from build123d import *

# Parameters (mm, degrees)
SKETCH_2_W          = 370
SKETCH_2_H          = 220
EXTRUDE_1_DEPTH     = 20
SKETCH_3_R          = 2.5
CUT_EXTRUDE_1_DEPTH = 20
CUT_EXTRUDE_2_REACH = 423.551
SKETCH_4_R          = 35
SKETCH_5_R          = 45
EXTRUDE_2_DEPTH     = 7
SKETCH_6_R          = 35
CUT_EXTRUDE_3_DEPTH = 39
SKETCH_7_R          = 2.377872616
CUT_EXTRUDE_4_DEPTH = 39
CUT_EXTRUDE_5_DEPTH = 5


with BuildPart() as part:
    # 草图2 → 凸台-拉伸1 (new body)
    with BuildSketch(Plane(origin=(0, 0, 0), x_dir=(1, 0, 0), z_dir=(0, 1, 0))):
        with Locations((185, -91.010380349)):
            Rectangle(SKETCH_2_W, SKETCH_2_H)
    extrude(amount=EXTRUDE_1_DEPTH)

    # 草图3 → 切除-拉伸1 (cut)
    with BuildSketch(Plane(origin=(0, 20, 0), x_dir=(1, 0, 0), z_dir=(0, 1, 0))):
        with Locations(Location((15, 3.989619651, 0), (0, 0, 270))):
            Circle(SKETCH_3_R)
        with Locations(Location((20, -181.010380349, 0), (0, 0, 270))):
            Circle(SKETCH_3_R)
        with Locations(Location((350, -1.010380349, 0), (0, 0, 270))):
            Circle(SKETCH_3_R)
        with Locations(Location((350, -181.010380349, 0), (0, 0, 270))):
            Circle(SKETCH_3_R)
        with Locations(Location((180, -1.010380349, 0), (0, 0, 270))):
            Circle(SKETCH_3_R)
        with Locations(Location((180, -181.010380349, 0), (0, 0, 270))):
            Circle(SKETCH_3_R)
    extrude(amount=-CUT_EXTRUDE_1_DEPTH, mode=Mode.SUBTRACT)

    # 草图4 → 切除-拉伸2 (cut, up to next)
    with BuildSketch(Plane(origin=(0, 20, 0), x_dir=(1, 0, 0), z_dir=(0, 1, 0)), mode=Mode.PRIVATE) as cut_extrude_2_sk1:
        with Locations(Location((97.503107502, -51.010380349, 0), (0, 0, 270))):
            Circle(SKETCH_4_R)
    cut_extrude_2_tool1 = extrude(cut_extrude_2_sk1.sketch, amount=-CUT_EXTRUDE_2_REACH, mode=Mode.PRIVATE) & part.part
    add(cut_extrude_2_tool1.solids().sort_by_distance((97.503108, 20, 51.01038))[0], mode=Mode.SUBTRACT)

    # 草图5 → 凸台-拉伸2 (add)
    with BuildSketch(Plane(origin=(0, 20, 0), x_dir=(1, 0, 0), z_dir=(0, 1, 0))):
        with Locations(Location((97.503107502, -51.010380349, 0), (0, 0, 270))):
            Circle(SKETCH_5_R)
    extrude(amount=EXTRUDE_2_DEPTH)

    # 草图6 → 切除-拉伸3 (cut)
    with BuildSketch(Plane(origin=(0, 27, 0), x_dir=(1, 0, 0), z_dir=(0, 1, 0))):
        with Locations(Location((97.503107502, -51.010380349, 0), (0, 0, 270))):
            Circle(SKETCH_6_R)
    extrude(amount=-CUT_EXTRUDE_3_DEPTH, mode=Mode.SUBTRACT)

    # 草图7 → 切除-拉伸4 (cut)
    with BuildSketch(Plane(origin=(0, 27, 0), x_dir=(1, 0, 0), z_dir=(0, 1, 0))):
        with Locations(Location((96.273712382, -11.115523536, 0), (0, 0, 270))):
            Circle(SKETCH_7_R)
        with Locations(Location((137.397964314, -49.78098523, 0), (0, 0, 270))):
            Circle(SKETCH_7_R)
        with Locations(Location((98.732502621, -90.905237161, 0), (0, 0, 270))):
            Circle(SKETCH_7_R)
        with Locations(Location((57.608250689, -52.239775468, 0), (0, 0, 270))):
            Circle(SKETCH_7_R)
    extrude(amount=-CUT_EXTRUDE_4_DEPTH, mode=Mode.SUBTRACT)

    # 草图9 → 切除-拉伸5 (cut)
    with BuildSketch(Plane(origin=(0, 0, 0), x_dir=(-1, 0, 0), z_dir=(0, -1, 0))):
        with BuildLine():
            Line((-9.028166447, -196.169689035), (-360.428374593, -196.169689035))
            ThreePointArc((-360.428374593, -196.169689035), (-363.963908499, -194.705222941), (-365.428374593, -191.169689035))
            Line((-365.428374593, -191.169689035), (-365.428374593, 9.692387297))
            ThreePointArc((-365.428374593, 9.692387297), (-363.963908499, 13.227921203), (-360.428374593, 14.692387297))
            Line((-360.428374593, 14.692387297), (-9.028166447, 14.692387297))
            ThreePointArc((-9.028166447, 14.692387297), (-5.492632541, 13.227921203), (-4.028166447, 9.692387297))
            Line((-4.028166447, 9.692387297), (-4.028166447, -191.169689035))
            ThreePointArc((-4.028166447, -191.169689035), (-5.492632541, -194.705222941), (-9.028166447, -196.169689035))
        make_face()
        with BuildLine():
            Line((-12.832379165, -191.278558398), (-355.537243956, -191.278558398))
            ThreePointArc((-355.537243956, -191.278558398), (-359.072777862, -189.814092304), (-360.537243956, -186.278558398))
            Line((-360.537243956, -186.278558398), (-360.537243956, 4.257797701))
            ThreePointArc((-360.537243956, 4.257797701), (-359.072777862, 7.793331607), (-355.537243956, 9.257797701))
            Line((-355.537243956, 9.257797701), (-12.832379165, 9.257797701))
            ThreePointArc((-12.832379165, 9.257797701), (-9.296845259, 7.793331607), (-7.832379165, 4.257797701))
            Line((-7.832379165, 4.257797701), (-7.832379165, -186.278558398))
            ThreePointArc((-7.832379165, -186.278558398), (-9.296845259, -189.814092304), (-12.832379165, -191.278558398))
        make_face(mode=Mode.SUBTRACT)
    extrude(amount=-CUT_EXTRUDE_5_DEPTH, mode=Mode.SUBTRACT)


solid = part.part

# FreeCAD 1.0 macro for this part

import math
import FreeCAD as App
import Part
import Sketcher

V = App.Vector
Q = App.Units.Quantity


def add_polygon(sketch, points):
    """Adds a closed chain of lines whose ends are joined by coincident constraints."""
    first, n = sketch.GeometryCount, len(points)
    for a, b in zip(points, points[1:] + points[:1]):
        sketch.addGeometry(Part.LineSegment(App.Vector(*a, 0), App.Vector(*b, 0)), False)
    for i in range(n):
        sketch.addConstraint(Sketcher.Constraint("Coincident", first + i, 2, first + (i + 1) % n, 1))

doc = App.newDocument("Part")
params = doc.addObject("Spreadsheet::Sheet", "Params")
for row, (alias, value) in enumerate([
    ("sketch1_width", "370 mm"),
    ("sketch1_height", "220 mm"),
    ("pad1_length", "20 mm"),
    ("sketch2_diameter", "5 mm"),
    ("pocket1_length", "20 mm"),
    ("sketch3_diameter", "70 mm"),
    ("sketch4_diameter", "90 mm"),
    ("pad2_length", "7 mm"),
    ("sketch5_diameter", "70 mm"),
    ("pocket3_length", "39 mm"),
    ("pocket4_length", "39 mm"),
    ("sketch7_radius", "5 mm"),
    ("pocket5_length", "5 mm"),
], start=1):
    params.set(f"A{row}", alias)
    params.set(f"B{row}", "=" + value)
    params.setAlias(f"B{row}", alias)

body = doc.addObject("PartDesign::Body", "Body")

# Sketch on XZ plane
sketch1 = body.newObject("Sketcher::SketchObject", "Sketch")
sketch1.AttachmentSupport = (doc.getObject("XZ_Plane"), [""])
sketch1.MapMode = "FlatFace"
add_polygon(sketch1, [(0, -18.98962), (0, 201.01038), (370, 201.01038), (370, -18.98962)])  # lines 0-3
sketch1.addConstraint([
    Sketcher.Constraint("Vertical", 0),
    Sketcher.Constraint("Horizontal", 1),
    Sketcher.Constraint("Vertical", 2),
    Sketcher.Constraint("Horizontal", 3),
    Sketcher.Constraint("PointOnObject", 0, 2, -2),
    Sketcher.Constraint("DistanceX", 1, 1, 1, 2, Q("370 mm")),
    Sketcher.Constraint("DistanceY", 0, 1, 0, 2, Q("220 mm")),
    Sketcher.Constraint("DistanceY", -1, 1, 0, 2, Q("201.01038 mm")),
])
sketch1.setExpression("Constraints[9]", "Params.sketch1_width")
sketch1.setExpression("Constraints[10]", "Params.sketch1_height")
pad1 = body.newObject("PartDesign::Pad", "Pad")
pad1.Profile = sketch1
pad1.setExpression("Length", "Params.pad1_length")
pad1.Reversed = True

# Sketch on XZ plane
sketch2 = body.newObject("Sketcher::SketchObject", "Sketch001")
sketch2.AttachmentSupport = (doc.getObject("XZ_Plane"), [""])
sketch2.MapMode = "FlatFace"
sketch2.AttachmentOffset = App.Placement(V(0, 0, -20), App.Rotation())
sketch2.addGeometry([
    Part.Circle(V(15, -3.98962, 0), V(0, 0, 1), 2.5),  # 0
    Part.Circle(V(20, 181.01038, 0), V(0, 0, 1), 2.5),  # 1
    Part.Circle(V(350, 1.01038, 0), V(0, 0, 1), 2.5),  # 2
    Part.Circle(V(350, 181.01038, 0), V(0, 0, 1), 2.5),  # 3
    Part.Circle(V(180, 1.01038, 0), V(0, 0, 1), 2.5),  # 4
    Part.Circle(V(180, 181.01038, 0), V(0, 0, 1), 2.5),  # 5
], False)
sketch2.addConstraint([
    Sketcher.Constraint("Equal", 0, 1),
    Sketcher.Constraint("Equal", 1, 2),
    Sketcher.Constraint("Equal", 2, 3),
    Sketcher.Constraint("Equal", 3, 4),
    Sketcher.Constraint("Equal", 4, 5),
    Sketcher.Constraint("Horizontal", 1, 3, 3, 3),
    Sketcher.Constraint("Horizontal", 2, 3, 4, 3),
    Sketcher.Constraint("Horizontal", 3, 3, 5, 3),
    Sketcher.Constraint("Vertical", 2, 3, 3, 3),
    Sketcher.Constraint("Vertical", 4, 3, 5, 3),
    Sketcher.Constraint("Diameter", 0, Q("5 mm")),
    Sketcher.Constraint("DistanceX", -1, 1, 0, 3, Q("15 mm")),
    Sketcher.Constraint("DistanceX", -1, 1, 1, 3, Q("20 mm")),
    Sketcher.Constraint("DistanceX", -1, 1, 2, 3, Q("350 mm")),
    Sketcher.Constraint("DistanceX", -1, 1, 4, 3, Q("180 mm")),
    Sketcher.Constraint("DistanceY", 0, 3, 1, 3, Q("185 mm")),
    Sketcher.Constraint("DistanceY", 0, 3, 2, 3, Q("5 mm")),
    Sketcher.Constraint("DistanceY", 0, 3, -1, 1, Q("3.98962 mm")),
])
sketch2.setExpression("Constraints[10]", "Params.sketch2_diameter")
pocket1 = body.newObject("PartDesign::Pocket", "Pocket")
pocket1.Profile = sketch2
pocket1.setExpression("Length", "Params.pocket1_length")
pocket1.Reversed = True

# Sketch on XZ plane
sketch3 = body.newObject("Sketcher::SketchObject", "Sketch002")
sketch3.AttachmentSupport = (doc.getObject("XZ_Plane"), [""])
sketch3.MapMode = "FlatFace"
sketch3.AttachmentOffset = App.Placement(V(0, 0, -20), App.Rotation())
sketch3.addGeometry(Part.Circle(V(97.503108, 51.01038, 0), V(0, 0, 1), 35), False)
sketch3.addConstraint([
    Sketcher.Constraint("Diameter", 0, Q("70 mm")),
    Sketcher.Constraint("DistanceY", -1, 1, 0, 3, Q("51.01038 mm")),
    Sketcher.Constraint("DistanceX", -1, 1, 0, 3, Q("97.503108 mm")),
])
sketch3.setExpression("Constraints[0]", "Params.sketch3_diameter")
pocket2 = body.newObject("PartDesign::Pocket", "Pocket001")
pocket2.Profile = sketch3
pocket2.Type = "UpToFirst"
pocket2.Reversed = True

# Sketch on XZ plane
sketch4 = body.newObject("Sketcher::SketchObject", "Sketch003")
sketch4.AttachmentSupport = (doc.getObject("XZ_Plane"), [""])
sketch4.MapMode = "FlatFace"
sketch4.AttachmentOffset = App.Placement(V(0, 0, -20), App.Rotation())
sketch4.addGeometry(Part.Circle(V(97.503108, 51.01038, 0), V(0, 0, 1), 45), False)
sketch4.addConstraint([
    Sketcher.Constraint("Diameter", 0, Q("90 mm")),
    Sketcher.Constraint("DistanceY", -1, 1, 0, 3, Q("51.01038 mm")),
    Sketcher.Constraint("DistanceX", -1, 1, 0, 3, Q("97.503108 mm")),
])
sketch4.setExpression("Constraints[0]", "Params.sketch4_diameter")
pad2 = body.newObject("PartDesign::Pad", "Pad001")
pad2.Profile = sketch4
pad2.setExpression("Length", "Params.pad2_length")
pad2.Reversed = True

# Sketch on XZ plane
sketch5 = body.newObject("Sketcher::SketchObject", "Sketch004")
sketch5.AttachmentSupport = (doc.getObject("XZ_Plane"), [""])
sketch5.MapMode = "FlatFace"
sketch5.AttachmentOffset = App.Placement(V(0, 0, -27), App.Rotation())
sketch5.addGeometry(Part.Circle(V(97.503108, 51.01038, 0), V(0, 0, 1), 35), False)
sketch5.addConstraint([
    Sketcher.Constraint("Diameter", 0, Q("70 mm")),
    Sketcher.Constraint("DistanceY", -1, 1, 0, 3, Q("51.01038 mm")),
    Sketcher.Constraint("DistanceX", -1, 1, 0, 3, Q("97.503108 mm")),
])
sketch5.setExpression("Constraints[0]", "Params.sketch5_diameter")
pocket3 = body.newObject("PartDesign::Pocket", "Pocket002")
pocket3.Profile = sketch5
pocket3.setExpression("Length", "Params.pocket3_length")
pocket3.Reversed = True

# Sketch on XZ plane
sketch6 = body.newObject("Sketcher::SketchObject", "Sketch005")
sketch6.AttachmentSupport = (doc.getObject("XZ_Plane"), [""])
sketch6.MapMode = "FlatFace"
sketch6.AttachmentOffset = App.Placement(V(0, 0, -27), App.Rotation())
sketch6.addGeometry([
    Part.Circle(V(96.273712, 11.115524, 0), V(0, 0, 1), 2.377873),
    Part.Circle(V(137.397964, 49.780985, 0), V(0, 0, 1), 2.377873),
    Part.Circle(V(98.732503, 90.905237, 0), V(0, 0, 1), 2.377873),
    Part.Circle(V(57.608251, 52.239775, 0), V(0, 0, 1), 2.377873),
], False)
sketch6.addConstraint([
    Sketcher.Constraint("Equal", 0, 1),
    Sketcher.Constraint("Equal", 1, 2),
    Sketcher.Constraint("Equal", 2, 3),
    Sketcher.Constraint("Diameter", 0, Q("4.755745 mm")),
    Sketcher.Constraint("DistanceX", -1, 1, 3, 3, Q("57.608251 mm")),
    Sketcher.Constraint("DistanceX", 0, 3, 1, 3, Q("41.124252 mm")),
    Sketcher.Constraint("DistanceY", 0, 3, 1, 3, Q("38.665462 mm")),
    Sketcher.Constraint("DistanceX", 2, 3, 1, 3, Q("38.665462 mm")),
    Sketcher.Constraint("DistanceY", 1, 3, 2, 3, Q("41.124252 mm")),
    Sketcher.Constraint("DistanceX", 3, 3, 0, 3, Q("38.665462 mm")),
    Sketcher.Constraint("DistanceY", 0, 3, 3, 3, Q("41.124252 mm")),
    Sketcher.Constraint("DistanceY", -1, 1, 0, 3, Q("11.115524 mm")),
])
pocket4 = body.newObject("PartDesign::Pocket", "Pocket003")
pocket4.Profile = sketch6
pocket4.setExpression("Length", "Params.pocket4_length")
pocket4.Reversed = True

# Sketch on XZ plane
sketch7 = body.newObject("Sketcher::SketchObject", "Sketch006")
sketch7.AttachmentSupport = (doc.getObject("XZ_Plane"), [""])
sketch7.MapMode = "FlatFace"
sketch7.addGeometry([
    Part.LineSegment(V(360.428375, 196.169689, 0), V(9.028166, 196.169689, 0)),  # 0
    Part.ArcOfCircle(Part.Circle(V(9.028166, 191.169689, 0), V(0, 0, 1), 5), math.radians(90), math.radians(180)),  # 1
    Part.LineSegment(V(4.028166, 191.169689, 0), V(4.028166, -9.692387, 0)),  # 2
    Part.ArcOfCircle(Part.Circle(V(9.028166, -9.692387, 0), V(0, 0, 1), 5), math.radians(180), math.radians(270)),  # 3
    Part.LineSegment(V(9.028166, -14.692387, 0), V(360.428375, -14.692387, 0)),  # 4
    Part.ArcOfCircle(Part.Circle(V(360.428375, -9.692387, 0), V(0, 0, 1), 5), math.radians(-90), math.radians(0)),  # 5
    Part.LineSegment(V(365.428375, -9.692387, 0), V(365.428375, 191.169689, 0)),  # 6
    Part.ArcOfCircle(Part.Circle(V(360.428375, 191.169689, 0), V(0, 0, 1), 5), math.radians(0), math.radians(90)),  # 7
    Part.LineSegment(V(12.832379, 191.278558, 0), V(355.537244, 191.278558, 0)),  # 8
    Part.ArcOfCircle(Part.Circle(V(355.537244, 186.278558, 0), V(0, 0, 1), 5), math.radians(0), math.radians(90)),  # 9
    Part.LineSegment(V(360.537244, 186.278558, 0), V(360.537244, -4.257798, 0)),  # 10
    Part.ArcOfCircle(Part.Circle(V(355.537244, -4.257798, 0), V(0, 0, 1), 5), math.radians(-90), math.radians(0)),  # 11
    Part.LineSegment(V(355.537244, -9.257798, 0), V(12.832379, -9.257798, 0)),  # 12
    Part.ArcOfCircle(Part.Circle(V(12.832379, -4.257798, 0), V(0, 0, 1), 5), math.radians(180), math.radians(270)),  # 13
    Part.LineSegment(V(7.832379, -4.257798, 0), V(7.832379, 186.278558, 0)),  # 14
    Part.ArcOfCircle(Part.Circle(V(12.832379, 186.278558, 0), V(0, 0, 1), 5), math.radians(90), math.radians(180)),  # 15
], False)
sketch7.addConstraint([
    Sketcher.Constraint("Tangent", 0, 2, 1, 1),
    Sketcher.Constraint("Tangent", 1, 2, 2, 1),
    Sketcher.Constraint("Tangent", 2, 2, 3, 1),
    Sketcher.Constraint("Tangent", 3, 2, 4, 1),
    Sketcher.Constraint("Tangent", 4, 2, 5, 1),
    Sketcher.Constraint("Tangent", 5, 2, 6, 1),
    Sketcher.Constraint("Tangent", 6, 2, 7, 1),
    Sketcher.Constraint("Tangent", 7, 2, 0, 1),
    Sketcher.Constraint("Tangent", 8, 2, 9, 2),
    Sketcher.Constraint("Tangent", 9, 1, 10, 1),
    Sketcher.Constraint("Tangent", 10, 2, 11, 2),
    Sketcher.Constraint("Tangent", 11, 1, 12, 1),
    Sketcher.Constraint("Tangent", 12, 2, 13, 2),
    Sketcher.Constraint("Tangent", 13, 1, 14, 1),
    Sketcher.Constraint("Tangent", 14, 2, 15, 2),
    Sketcher.Constraint("Tangent", 15, 1, 8, 1),
    Sketcher.Constraint("Horizontal", 0),
    Sketcher.Constraint("Vertical", 2),
    Sketcher.Constraint("Horizontal", 4),
    Sketcher.Constraint("Vertical", 6),
    Sketcher.Constraint("Horizontal", 8),
    Sketcher.Constraint("Vertical", 10),
    Sketcher.Constraint("Horizontal", 12),
    Sketcher.Constraint("Vertical", 14),
    Sketcher.Constraint("Equal", 1, 3),
    Sketcher.Constraint("Equal", 3, 5),
    Sketcher.Constraint("Equal", 5, 7),
    Sketcher.Constraint("Equal", 7, 9),
    Sketcher.Constraint("Equal", 9, 11),
    Sketcher.Constraint("Equal", 11, 13),
    Sketcher.Constraint("Equal", 13, 15),
    Sketcher.Constraint("Radius", 1, Q("5 mm")),
    Sketcher.Constraint("DistanceX", 0, 2, 0, 1, Q("351.400208 mm")),
    Sketcher.Constraint("DistanceX", 8, 1, 8, 2, Q("342.704865 mm")),
    Sketcher.Constraint("DistanceY", 2, 2, 2, 1, Q("200.862076 mm")),
    Sketcher.Constraint("DistanceY", 10, 2, 10, 1, Q("190.536356 mm")),
    Sketcher.Constraint("DistanceY", -1, 1, 1, 3, Q("191.169689 mm")),
    Sketcher.Constraint("DistanceY", -1, 1, 9, 3, Q("186.278558 mm")),
    Sketcher.Constraint("DistanceX", -1, 1, 13, 3, Q("12.832379 mm")),
    Sketcher.Constraint("DistanceX", 9, 3, 7, 3, Q("4.891131 mm")),
])
sketch7.setExpression("Constraints[31]", "Params.sketch7_radius")
pocket5 = body.newObject("PartDesign::Pocket", "Pocket004")
pocket5.Profile = sketch7
pocket5.setExpression("Length", "Params.pocket5_length")

doc.recompute()
